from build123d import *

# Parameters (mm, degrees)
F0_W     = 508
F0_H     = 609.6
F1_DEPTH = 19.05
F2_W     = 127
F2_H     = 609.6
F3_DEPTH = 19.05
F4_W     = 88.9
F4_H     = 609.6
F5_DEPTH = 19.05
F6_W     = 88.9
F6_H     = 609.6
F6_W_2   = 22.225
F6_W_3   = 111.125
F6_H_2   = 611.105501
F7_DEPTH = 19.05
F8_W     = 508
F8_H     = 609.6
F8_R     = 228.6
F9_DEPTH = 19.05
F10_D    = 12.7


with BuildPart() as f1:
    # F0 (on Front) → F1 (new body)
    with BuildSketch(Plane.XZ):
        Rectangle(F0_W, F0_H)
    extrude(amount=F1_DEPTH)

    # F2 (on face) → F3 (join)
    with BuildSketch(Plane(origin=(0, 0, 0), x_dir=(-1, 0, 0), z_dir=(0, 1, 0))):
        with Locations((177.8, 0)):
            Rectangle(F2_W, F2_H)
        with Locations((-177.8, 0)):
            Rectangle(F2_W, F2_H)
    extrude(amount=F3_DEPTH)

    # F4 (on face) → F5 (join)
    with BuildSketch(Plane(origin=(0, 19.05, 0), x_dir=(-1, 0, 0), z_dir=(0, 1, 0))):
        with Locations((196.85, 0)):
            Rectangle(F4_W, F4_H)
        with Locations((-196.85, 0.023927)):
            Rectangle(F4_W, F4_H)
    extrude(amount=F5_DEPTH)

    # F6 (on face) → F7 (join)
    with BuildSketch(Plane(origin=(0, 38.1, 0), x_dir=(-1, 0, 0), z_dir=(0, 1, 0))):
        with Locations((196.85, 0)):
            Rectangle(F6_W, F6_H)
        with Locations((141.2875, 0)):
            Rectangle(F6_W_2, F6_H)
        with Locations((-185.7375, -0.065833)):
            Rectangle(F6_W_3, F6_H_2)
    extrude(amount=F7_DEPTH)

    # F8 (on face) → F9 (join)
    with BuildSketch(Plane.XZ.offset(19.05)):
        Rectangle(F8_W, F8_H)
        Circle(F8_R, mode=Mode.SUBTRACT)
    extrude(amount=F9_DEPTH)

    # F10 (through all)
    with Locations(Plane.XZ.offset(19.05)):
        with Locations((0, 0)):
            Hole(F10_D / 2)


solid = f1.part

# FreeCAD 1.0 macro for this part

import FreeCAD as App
import Part
import Sketcher
Q = App.Units.Quantity


def add_polygon(sketch, points):
    """Adds a closed chain of lines whose ends are joined by coincident constraints."""
    first, n = sketch.GeometryCount, len(points)
    for a, b in zip(points, points[1:] + points[:1]):
        sketch.addGeometry(Part.LineSegment(App.Vector(*a, 0), App.Vector(*b, 0)), False)
    for i in range(n):
        sketch.addConstraint(Sketcher.Constraint("Coincident", first + i, 2, first + (i + 1) % n, 1))

doc = App.newDocument("Part")
params = doc.addObject("Spreadsheet::Sheet", "Params")
for row, (alias, value) in enumerate([
    ("sketch1_width", "20 in"),
    ("sketch1_height", "24 in"),
    ("pad1_length", "0.75 in"),
    ("sketch2_width", "5 in"),
    ("sketch2_height", "24 in"),
    ("pad2_length", "0.75 in"),
    ("sketch3_height", "24 in"),
    ("sketch3_width", "3.5 in"),
    ("pad3_length", "0.75 in"),
    ("sketch4_height", "24 in"),
    ("sketch4_width", "4.375 in"),
    ("pad4_length", "0.75 in"),
    ("sketch5_diameter", "18 in"),
    ("sketch5_width", "20 in"),
    ("sketch5_height", "24 in"),
    ("pad5_length", "0.75 in"),
    ("sketch6_diameter", "0.5 in"),
    ("hole_diameter", "0.5 in"),
], start=1):
    params.set(f"A{row}", alias)
    params.set(f"B{row}", "=" + value)
    params.setAlias(f"B{row}", alias)

body = doc.addObject("PartDesign::Body", "Body")

sketch1 = body.newObject("Sketcher::SketchObject", "Sketch")
sketch1.AttachmentSupport = (doc.getObject("XZ_Plane"), [""])
sketch1.MapMode = "FlatFace"
add_polygon(sketch1, [(-254, 305), (-254, -305), (254, -305), (254, 305)])
sketch1.addConstraint(Sketcher.Constraint("Vertical", 0))
sketch1.addConstraint(Sketcher.Constraint("Horizontal", 1))
sketch1.addConstraint(Sketcher.Constraint("Vertical", 2))
sketch1.addConstraint(Sketcher.Constraint("Horizontal", 3))
sketch1.addConstraint(Sketcher.Constraint("Symmetric", 0, 2, 2, 2, -1, 1))
sketch1.addConstraint(Sketcher.Constraint("DistanceX", 1, 1, 1, 2, Q("20 in")))
sketch1.addConstraint(Sketcher.Constraint("DistanceY", 0, 2, 0, 1, Q("24 in")))
sketch1.setExpression("Constraints[9]", "Params.sketch1_width")
sketch1.setExpression("Constraints[10]", "Params.sketch1_height")
pad1 = body.newObject("PartDesign::Pad", "Pad")
pad1.Profile = sketch1
pad1.setExpression("Length", "Params.pad1_length")

sketch2 = body.newObject("Sketcher::SketchObject", "Sketch001")
sketch2.AttachmentSupport = (doc.getObject("XZ_Plane"), [""])
sketch2.MapMode = "FlatFace"
add_polygon(sketch2, [(-114, 305), (-114, -305), (-241, -305), (-241, 305)])
add_polygon(sketch2, [(241, 305), (241, -305), (114, -305), (114, 305)])
sketch2.addConstraint(Sketcher.Constraint("Vertical", 0))
sketch2.addConstraint(Sketcher.Constraint("Horizontal", 1))
sketch2.addConstraint(Sketcher.Constraint("Vertical", 2))
sketch2.addConstraint(Sketcher.Constraint("Horizontal", 3))
sketch2.addConstraint(Sketcher.Constraint("Vertical", 4))
sketch2.addConstraint(Sketcher.Constraint("Horizontal", 5))
sketch2.addConstraint(Sketcher.Constraint("Vertical", 6))
sketch2.addConstraint(Sketcher.Constraint("Horizontal", 7))
sketch2.addConstraint(Sketcher.Constraint("Symmetric", 2, 2, 4, 2, -1, 1))
sketch2.addConstraint(Sketcher.Constraint("Symmetric", 0, 2, 6, 2, -1, 1))
sketch2.addConstraint(Sketcher.Constraint("Horizontal", 1, 2, 4, 2))
sketch2.addConstraint(Sketcher.Constraint("DistanceX", 1, 2, 1, 1, Q("5 in")))
sketch2.addConstraint(Sketcher.Constraint("DistanceY", 0, 2, 0, 1, Q("24 in")))
sketch2.addConstraint(Sketcher.Constraint("DistanceX", 0, 2, 4, 2, Q("14 in")))
sketch2.setExpression("Constraints[19]", "Params.sketch2_width")
sketch2.setExpression("Constraints[20]", "Params.sketch2_height")
pad2 = body.newObject("PartDesign::Pad", "Pad001")
pad2.Profile = sketch2
pad2.setExpression("Length", "Params.pad2_length")
pad2.Reversed = True

sketch3 = body.newObject("Sketcher::SketchObject", "Sketch002")
sketch3.AttachmentSupport = (doc.getObject("XZ_Plane"), [""])
sketch3.MapMode = "FlatFace"
sketch3.AttachmentOffset = App.Placement(App.Vector(0, 0, -0.75 * 25.4), App.Rotation())
add_polygon(sketch3, [(-152, 305), (-152, -305), (-241, -305), (-241, 305)])
add_polygon(sketch3, [(241, 305), (241, -305), (152, -305), (152, 305)])
sketch3.addConstraint(Sketcher.Constraint("Vertical", 0))
sketch3.addConstraint(Sketcher.Constraint("Horizontal", 1))
sketch3.addConstraint(Sketcher.Constraint("Vertical", 2))
sketch3.addConstraint(Sketcher.Constraint("Horizontal", 3))
sketch3.addConstraint(Sketcher.Constraint("Vertical", 4))
sketch3.addConstraint(Sketcher.Constraint("Horizontal", 5))
sketch3.addConstraint(Sketcher.Constraint("Vertical", 6))
sketch3.addConstraint(Sketcher.Constraint("Horizontal", 7))
sketch3.addConstraint(Sketcher.Constraint("Equal", 3, 5))
sketch3.addConstraint(Sketcher.Constraint("Equal", 2, 4))
sketch3.addConstraint(Sketcher.Constraint("DistanceY", 0, 2, 0, 1, Q("24 in")))
sketch3.addConstraint(Sketcher.Constraint("DistanceX", 1, 2, 1, 1, Q("3.5 in")))
sketch3.addConstraint(Sketcher.Constraint("DistanceX", 0, 2, -1, 1, Q("6 in")))
sketch3.addConstraint(Sketcher.Constraint("DistanceY", 0, 2, -1, 1, Q("12 in")))
sketch3.addConstraint(Sketcher.Constraint("DistanceX", -1, 1, 5, 2, Q("6 in")))
sketch3.addConstraint(Sketcher.Constraint("DistanceY", 4, 2, -1, 1, Q("304.776073 mm")))
sketch3.setExpression("Constraints[18]", "Params.sketch3_height")
sketch3.setExpression("Constraints[19]", "Params.sketch3_width")
pad3 = body.newObject("PartDesign::Pad", "Pad002")
pad3.Profile = sketch3
pad3.setExpression("Length", "Params.pad3_length")
pad3.Reversed = True

sketch4 = body.newObject("Sketcher::SketchObject", "Sketch003")
sketch4.AttachmentSupport = (doc.getObject("XZ_Plane"), [""])
sketch4.MapMode = "FlatFace"
sketch4.AttachmentOffset = App.Placement(App.Vector(0, 0, -1.5 * 25.4), App.Rotation())
add_polygon(sketch4, [(-241, -305), (-241, 305), (-130, 305), (-130, -305)])
add_polygon(sketch4, [(241, 305), (241, -306), (130, -306), (130, 305)])
sketch4.addConstraint(Sketcher.Constraint("Vertical", 0))
sketch4.addConstraint(Sketcher.Constraint("Horizontal", 1))
sketch4.addConstraint(Sketcher.Constraint("Vertical", 2))
sketch4.addConstraint(Sketcher.Constraint("Horizontal", 3))
sketch4.addConstraint(Sketcher.Constraint("Vertical", 4))
sketch4.addConstraint(Sketcher.Constraint("Horizontal", 5))
sketch4.addConstraint(Sketcher.Constraint("Vertical", 6))
sketch4.addConstraint(Sketcher.Constraint("Horizontal", 7))
sketch4.addConstraint(Sketcher.Constraint("Equal", 3, 5))
sketch4.addConstraint(Sketcher.Constraint("DistanceY", 0, 1, 0, 2, Q("24 in")))
sketch4.addConstraint(Sketcher.Constraint("DistanceY", -1, 1, 0, 2, Q("12 in")))
sketch4.addConstraint(Sketcher.Constraint("DistanceX", 3, 2, 4, 2, Q("19 in")))
sketch4.addConstraint(Sketcher.Constraint("DistanceX", 0, 2, -1, 1, Q("9.5 in")))
sketch4.addConstraint(Sketcher.Constraint("DistanceX", 1, 1, 1, 2, Q("4.375 in")))
sketch4.addConstraint(Sketcher.Constraint("DistanceY", 4, 2, 4, 1, Q("611.105501 mm")))
sketch4.addConstraint(Sketcher.Constraint("DistanceY", 4, 2, -1, 1, Q("305.618583 mm")))
sketch4.setExpression("Constraints[17]", "Params.sketch4_height")
sketch4.setExpression("Constraints[21]", "Params.sketch4_width")
pad4 = body.newObject("PartDesign::Pad", "Pad003")
pad4.Profile = sketch4
pad4.setExpression("Length", "Params.pad4_length")
pad4.Reversed = True

sketch5 = body.newObject("Sketcher::SketchObject", "Sketch004")
sketch5.AttachmentSupport = (doc.getObject("XZ_Plane"), [""])
sketch5.MapMode = "FlatFace"
sketch5.AttachmentOffset = App.Placement(App.Vector(0, 0, 0.75 * 25.4), App.Rotation())
add_polygon(sketch5, [(-254, 305), (-254, -305), (254, -305), (254, 305)])
sketch5.addGeometry(Part.Circle(App.Vector(0, 0, 0), App.Vector(0, 0, 1), 229), False)
sketch5.addConstraint(Sketcher.Constraint("Vertical", 0))
sketch5.addConstraint(Sketcher.Constraint("Horizontal", 1))
sketch5.addConstraint(Sketcher.Constraint("Vertical", 2))
sketch5.addConstraint(Sketcher.Constraint("Horizontal", 3))
sketch5.addConstraint(Sketcher.Constraint("Coincident", 4, 3, -1, 1))
sketch5.addConstraint(Sketcher.Constraint("Symmetric", 0, 2, 2, 2, -1, 1))
sketch5.addConstraint(Sketcher.Constraint("Diameter", 4, Q("18 in")))
sketch5.addConstraint(Sketcher.Constraint("DistanceX", 1, 1, 1, 2, Q("20 in")))
sketch5.addConstraint(Sketcher.Constraint("DistanceY", 0, 2, 0, 1, Q("24 in")))
sketch5.setExpression("Constraints[10]", "Params.sketch5_diameter")
sketch5.setExpression("Constraints[11]", "Params.sketch5_width")
sketch5.setExpression("Constraints[12]", "Params.sketch5_height")
pad5 = body.newObject("PartDesign::Pad", "Pad004")
pad5.Profile = sketch5
pad5.setExpression("Length", "Params.pad5_length")

sketch6 = body.newObject("Sketcher::SketchObject", "Sketch005")
sketch6.AttachmentSupport = (doc.getObject("XZ_Plane"), [""])
sketch6.MapMode = "FlatFace"
sketch6.AttachmentOffset = App.Placement(App.Vector(0, 0, 0.75 * 25.4), App.Rotation())
sketch6.addGeometry(Part.Circle(App.Vector(0, 0, 0), App.Vector(0, 0, 1), 6), False)
sketch6.addConstraint(Sketcher.Constraint("Coincident", 0, 3, -1, 1))
sketch6.addConstraint(Sketcher.Constraint("Diameter", 0, Q("0.5 in")))
sketch6.setExpression("Constraints[1]", "Params.sketch6_diameter")
doc.recompute()
hole = body.newObject("PartDesign::Hole", "Hole")
hole.Profile = sketch6
hole.ThreadType = "None"
hole.setExpression("Diameter", "Params.hole_diameter")
hole.DepthType = "ThroughAll"

doc.recompute()
